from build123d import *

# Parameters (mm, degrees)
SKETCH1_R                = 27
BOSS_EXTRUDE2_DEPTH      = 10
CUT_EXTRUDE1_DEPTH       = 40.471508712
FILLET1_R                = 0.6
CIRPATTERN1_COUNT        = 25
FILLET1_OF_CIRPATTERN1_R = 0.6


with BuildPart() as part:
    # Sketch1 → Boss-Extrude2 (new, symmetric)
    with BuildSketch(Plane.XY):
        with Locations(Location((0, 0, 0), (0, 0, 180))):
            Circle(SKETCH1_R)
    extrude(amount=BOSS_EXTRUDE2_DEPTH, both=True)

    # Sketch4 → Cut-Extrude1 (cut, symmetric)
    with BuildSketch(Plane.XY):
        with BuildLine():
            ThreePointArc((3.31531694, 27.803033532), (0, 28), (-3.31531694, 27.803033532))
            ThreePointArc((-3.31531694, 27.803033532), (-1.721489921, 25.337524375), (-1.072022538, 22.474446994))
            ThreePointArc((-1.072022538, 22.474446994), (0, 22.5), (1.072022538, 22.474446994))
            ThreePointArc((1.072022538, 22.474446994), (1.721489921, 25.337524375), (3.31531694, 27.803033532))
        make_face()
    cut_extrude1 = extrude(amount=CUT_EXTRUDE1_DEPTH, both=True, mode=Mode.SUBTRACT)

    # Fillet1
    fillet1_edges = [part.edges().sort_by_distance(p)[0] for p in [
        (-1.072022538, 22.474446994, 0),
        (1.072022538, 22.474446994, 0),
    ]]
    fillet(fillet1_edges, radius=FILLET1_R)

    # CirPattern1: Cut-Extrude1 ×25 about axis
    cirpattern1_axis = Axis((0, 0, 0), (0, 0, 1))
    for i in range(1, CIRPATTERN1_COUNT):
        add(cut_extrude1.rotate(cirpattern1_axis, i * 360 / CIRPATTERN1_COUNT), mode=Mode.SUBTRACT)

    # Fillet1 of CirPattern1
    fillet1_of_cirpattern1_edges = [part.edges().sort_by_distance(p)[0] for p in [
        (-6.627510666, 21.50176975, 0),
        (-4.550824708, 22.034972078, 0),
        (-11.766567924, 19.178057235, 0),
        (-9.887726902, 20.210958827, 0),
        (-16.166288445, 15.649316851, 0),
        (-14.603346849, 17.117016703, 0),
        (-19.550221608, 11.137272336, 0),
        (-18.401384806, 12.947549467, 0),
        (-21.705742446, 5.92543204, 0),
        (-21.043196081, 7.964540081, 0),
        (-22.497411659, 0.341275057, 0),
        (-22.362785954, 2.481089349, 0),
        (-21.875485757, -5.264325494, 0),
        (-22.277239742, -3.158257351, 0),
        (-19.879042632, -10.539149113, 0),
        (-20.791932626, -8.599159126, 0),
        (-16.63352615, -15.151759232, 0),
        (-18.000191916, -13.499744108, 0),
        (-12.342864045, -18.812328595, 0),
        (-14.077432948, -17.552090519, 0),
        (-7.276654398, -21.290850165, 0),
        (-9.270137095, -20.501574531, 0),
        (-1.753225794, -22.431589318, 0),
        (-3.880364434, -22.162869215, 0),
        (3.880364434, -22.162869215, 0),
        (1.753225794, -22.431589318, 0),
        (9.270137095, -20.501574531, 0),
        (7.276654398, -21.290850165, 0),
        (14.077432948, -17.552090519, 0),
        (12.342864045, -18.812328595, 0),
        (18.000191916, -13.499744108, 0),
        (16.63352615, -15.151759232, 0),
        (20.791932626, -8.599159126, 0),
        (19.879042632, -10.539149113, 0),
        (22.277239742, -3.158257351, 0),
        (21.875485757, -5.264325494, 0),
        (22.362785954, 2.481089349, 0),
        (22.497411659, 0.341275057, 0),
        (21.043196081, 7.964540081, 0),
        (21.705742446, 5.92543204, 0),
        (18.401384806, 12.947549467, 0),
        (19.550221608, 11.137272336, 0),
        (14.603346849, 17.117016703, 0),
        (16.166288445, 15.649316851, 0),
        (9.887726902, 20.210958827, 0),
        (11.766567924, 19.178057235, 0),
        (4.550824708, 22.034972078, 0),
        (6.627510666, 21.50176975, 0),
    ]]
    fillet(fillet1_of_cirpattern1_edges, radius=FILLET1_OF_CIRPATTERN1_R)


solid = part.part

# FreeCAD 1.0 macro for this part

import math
import FreeCAD as App
import Part
import Sketcher

V = App.Vector
Q = App.Units.Quantity


def edges_at(feature, points):
    """Names of the edges that pass closest to the given points."""
    edges = feature.Shape.Edges
    near = lambda p: min(range(len(edges)), key=lambda i: edges[i].distToShape(Part.Vertex(*p))[0])
    return sorted({f"Edge{near(p) + 1}" for p in points})

doc = App.newDocument("Part")
params = doc.addObject("Spreadsheet::Sheet", "Params")
for row, (alias, value) in enumerate([
    ("sketch1_diameter", "54 mm"),
    ("pad1_length", "20 mm"),
    ("sketch2_radius", "28 mm"),
    ("sketch2_radius2", "22.5 mm"),
    ("pocket1_length", "80.943017 mm"),
    ("fillet_radius", "0.6 mm"),
    ("fillet2_radius", "0.6 mm"),
], start=1):
    params.set(f"A{row}", alias)
    params.set(f"B{row}", "=" + value)
    params.setAlias(f"B{row}", alias)

body = doc.addObject("PartDesign::Body", "Body")

# Sketch on XY plane
sketch1 = body.newObject("Sketcher::SketchObject", "Sketch")
sketch1.AttachmentSupport = (doc.getObject("XY_Plane"), [""])
sketch1.MapMode = "FlatFace"
sketch1.addGeometry(Part.Circle(V(0, 0, 0), V(0, 0, 1), 27), False)
sketch1.addConstraint([
    Sketcher.Constraint("Coincident", 0, 3, -1, 1),
    Sketcher.Constraint("Diameter", 0, Q("54 mm")),
])
sketch1.setExpression("Constraints[1]", "Params.sketch1_diameter")
pad1 = body.newObject("PartDesign::Pad", "Pad")
pad1.Profile = sketch1
pad1.setExpression("Length", "Params.pad1_length")
pad1.Midplane = True

# Sketch on XY plane
sketch2 = body.newObject("Sketcher::SketchObject", "Sketch001")
sketch2.AttachmentSupport = (doc.getObject("XY_Plane"), [""])
sketch2.MapMode = "FlatFace"
sketch2.addGeometry([
    Part.ArcOfCircle(Part.Circle(V(0, 0, 0), V(0, 0, 1), 28), math.radians(83.2), math.radians(96.8)),
    Part.ArcOfCircle(Part.Circle(V(-9.5, 22.1, 0), V(0, 0, 1), 8.4), math.radians(3), math.radians(43)),
    Part.ArcOfCircle(Part.Circle(V(0, 0, 0), V(0, 0, 1), 22.5), math.radians(87.27), math.radians(92.73)),
    Part.ArcOfCircle(Part.Circle(V(9.5, 22.1, 0), V(0, 0, 1), 8.4), math.radians(137), math.radians(177)),
], False)
sketch2.addConstraint([
    Sketcher.Constraint("Coincident", 0, 2, 1, 2),
    Sketcher.Constraint("Coincident", 1, 1, 2, 2),
    Sketcher.Constraint("Coincident", 2, 1, 3, 2),
    Sketcher.Constraint("Coincident", 3, 1, 0, 1),
    Sketcher.Constraint("Coincident", 0, 3, -1, 1),
    Sketcher.Constraint("Coincident", 2, 3, -1, 1),
    Sketcher.Constraint("Equal", 1, 3),
    Sketcher.Constraint("Symmetric", 1, 3, 3, 3, -2),
    Sketcher.Constraint("Radius", 0, Q("28 mm")),
    Sketcher.Constraint("Radius", 2, Q("22.5 mm")),
    Sketcher.Constraint("Radius", 1, Q("8.4118 mm")),
    Sketcher.Constraint("DistanceX", 1, 3, -1, 1, Q("9.47427 mm")),
    Sketcher.Constraint("DistanceY", 1, 3, 0, 2, Q("5.729371 mm")),
])
sketch2.setExpression("Constraints[8]", "Params.sketch2_radius")
sketch2.setExpression("Constraints[9]", "Params.sketch2_radius2")
pocket1 = body.newObject("PartDesign::Pocket", "Pocket")
pocket1.Profile = sketch2
pocket1.setExpression("Length", "Params.pocket1_length")
pocket1.Midplane = True
doc.recompute()

fillet = body.newObject("PartDesign::Fillet", "Fillet")
fillet.Base = (pocket1, edges_at(pocket1, [(-1.072, 22.474, 0), (1.072, 22.474, 0)]))
fillet.setExpression("Radius", "Params.fillet_radius")
doc.recompute()

polarpattern = body.newObject("PartDesign::PolarPattern", "PolarPattern")
polarpattern.Originals = [pocket1]
polarpattern.Axis = (doc.getObject("Z_Axis"), [""])
polarpattern.Angle = 360
polarpattern.Occurrences = 25
body.Tip = polarpattern
doc.recompute()

fillet2 = body.newObject("PartDesign::Fillet", "Fillet001")
fillet2.Base = (polarpattern, edges_at(polarpattern, [
    (-6.628, 21.502, 0),
    (-4.551, 22.035, 0),
    (-11.767, 19.178, 0),
    (-9.888, 20.211, 0),
    (-16.166, 15.649, 0),
    (-14.603, 17.117, 0),
    (-19.55, 11.137, 0),
    (-18.401, 12.948, 0),
    (-21.706, 5.925, 0),
    (-21.043, 7.965, 0),
    (-22.497, 0.341, 0),
    (-22.363, 2.481, 0),
    (-21.875, -5.264, 0),
    (-22.277, -3.158, 0),
    (-19.879, -10.539, 0),
    (-20.792, -8.599, 0),
    (-16.634, -15.152, 0),
    (-18, -13.5, 0),
    (-12.343, -18.812, 0),
    (-14.077, -17.552, 0),
    (-7.277, -21.291, 0),
    (-9.27, -20.502, 0),
    (-1.753, -22.432, 0),
    (-3.88, -22.163, 0),
    (3.88, -22.163, 0),
    (1.753, -22.432, 0),
    (9.27, -20.502, 0),
    (7.277, -21.291, 0),
    (14.077, -17.552, 0),
    (12.343, -18.812, 0),
    (18, -13.5, 0),
    (16.634, -15.152, 0),
    (20.792, -8.599, 0),
    (19.879, -10.539, 0),
    (22.277, -3.158, 0),
    (21.875, -5.264, 0),
    (22.363, 2.481, 0),
    (22.497, 0.341, 0),
    (21.043, 7.965, 0),
    (21.706, 5.925, 0),
    (18.401, 12.948, 0),
    (19.55, 11.137, 0),
    (14.603, 17.117, 0),
    (16.166, 15.649, 0),
    (9.888, 20.211, 0),
    (11.767, 19.178, 0),
    (4.551, 22.035, 0),
    (6.628, 21.502, 0),
]))
fillet2.setExpression("Radius", "Params.fillet2_radius")

doc.recompute()
